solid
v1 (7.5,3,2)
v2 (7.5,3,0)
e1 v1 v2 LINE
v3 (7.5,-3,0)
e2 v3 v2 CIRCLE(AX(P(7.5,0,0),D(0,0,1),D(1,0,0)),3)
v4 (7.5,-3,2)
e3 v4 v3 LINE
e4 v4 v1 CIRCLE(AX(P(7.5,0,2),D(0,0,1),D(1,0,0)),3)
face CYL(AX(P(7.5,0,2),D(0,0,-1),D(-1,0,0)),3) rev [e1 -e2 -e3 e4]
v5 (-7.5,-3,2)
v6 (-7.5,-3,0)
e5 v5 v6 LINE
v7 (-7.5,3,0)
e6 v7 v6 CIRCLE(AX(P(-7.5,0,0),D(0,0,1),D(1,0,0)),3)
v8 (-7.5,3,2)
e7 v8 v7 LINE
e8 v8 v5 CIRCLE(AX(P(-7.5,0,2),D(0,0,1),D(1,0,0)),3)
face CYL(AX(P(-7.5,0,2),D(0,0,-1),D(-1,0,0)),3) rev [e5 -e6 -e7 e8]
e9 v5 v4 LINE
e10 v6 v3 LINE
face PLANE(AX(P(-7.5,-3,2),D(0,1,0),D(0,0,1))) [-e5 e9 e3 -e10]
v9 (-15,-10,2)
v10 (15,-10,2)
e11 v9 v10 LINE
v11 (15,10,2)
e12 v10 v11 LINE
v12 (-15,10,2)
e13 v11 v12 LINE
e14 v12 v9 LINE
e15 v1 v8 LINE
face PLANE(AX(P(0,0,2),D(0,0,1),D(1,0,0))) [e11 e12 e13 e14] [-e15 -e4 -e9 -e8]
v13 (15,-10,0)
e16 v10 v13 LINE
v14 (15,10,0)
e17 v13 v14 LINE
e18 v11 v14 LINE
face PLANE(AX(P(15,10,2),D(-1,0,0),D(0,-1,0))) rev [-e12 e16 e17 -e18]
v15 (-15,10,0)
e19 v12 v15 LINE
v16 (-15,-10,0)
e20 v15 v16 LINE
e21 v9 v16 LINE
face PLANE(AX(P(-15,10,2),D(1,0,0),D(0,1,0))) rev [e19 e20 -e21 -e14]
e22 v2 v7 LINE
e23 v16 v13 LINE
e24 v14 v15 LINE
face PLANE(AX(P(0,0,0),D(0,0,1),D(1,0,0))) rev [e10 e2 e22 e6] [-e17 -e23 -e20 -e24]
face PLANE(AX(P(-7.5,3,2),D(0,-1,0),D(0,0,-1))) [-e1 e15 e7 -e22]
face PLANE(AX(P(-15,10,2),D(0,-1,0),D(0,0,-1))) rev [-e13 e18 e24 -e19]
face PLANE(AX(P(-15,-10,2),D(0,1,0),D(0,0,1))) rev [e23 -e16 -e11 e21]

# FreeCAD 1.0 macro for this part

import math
import FreeCAD as App
import Part
import Sketcher
from FreeCAD import Vector
Q = App.Units.Quantity

doc = App.newDocument("Part")
params = doc.addObject("Spreadsheet::Sheet", "Params")
for row, (alias, value) in enumerate([
    ("sketch1_radius", "3 mm"),
    ("sketch1_width", "30 mm"),
    ("sketch1_width2", "15 mm"),
    ("sketch1_height", "20 mm"),
    ("pad1_length", "2 mm"),
], start=1):
    params.set(f"A{row}", alias)
    params.set(f"B{row}", "=" + value)
    params.setAlias(f"B{row}", alias)

body = doc.addObject("PartDesign::Body", "Body")

# Sketch on XY plane
sketch1 = doc.addObject("Sketcher::SketchObject", "Sketch")
body.addObject(sketch1)
sketch1.AttachmentSupport = (doc.XY_Plane, [""])
sketch1.MapMode = "FlatFace"
sketch1.addGeometry(Part.LineSegment(Vector(-15, 10, 0), Vector(-15, -10, 0)), False)
sketch1.addGeometry(Part.LineSegment(Vector(-15, -10, 0), Vector(15, -10, 0)), False)
sketch1.addGeometry(Part.LineSegment(Vector(15, -10, 0), Vector(15, 10, 0)), False)
sketch1.addGeometry(Part.LineSegment(Vector(15, 10, 0), Vector(-15, 10, 0)), False)
sketch1.addGeometry(Part.ArcOfCircle(Part.Circle(Vector(-7.5, 0, 0), Vector(0, 0, 1), 3), math.radians(90), math.radians(270)), False)
sketch1.addGeometry(Part.LineSegment(Vector(-7.5, 3, 0), Vector(7.5, 3, 0)), False)
sketch1.addGeometry(Part.ArcOfCircle(Part.Circle(Vector(7.5, 0, 0), Vector(0, 0, 1), 3), math.radians(-90), math.radians(90)), False)
sketch1.addGeometry(Part.LineSegment(Vector(7.5, -3, 0), Vector(-7.5, -3, 0)), False)
sketch1.addConstraint(Sketcher.Constraint("Coincident", 0, 2, 1, 1))
sketch1.addConstraint(Sketcher.Constraint("Coincident", 1, 2, 2, 1))
sketch1.addConstraint(Sketcher.Constraint("Coincident", 2, 2, 3, 1))
sketch1.addConstraint(Sketcher.Constraint("Coincident", 3, 2, 0, 1))
sketch1.addConstraint(Sketcher.Constraint("Tangent", 4, 1, 5, 1))
sketch1.addConstraint(Sketcher.Constraint("Tangent", 5, 2, 6, 2))
sketch1.addConstraint(Sketcher.Constraint("Tangent", 6, 1, 7, 1))
sketch1.addConstraint(Sketcher.Constraint("Tangent", 7, 2, 4, 2))
sketch1.addConstraint(Sketcher.Constraint("Vertical", 0))
sketch1.addConstraint(Sketcher.Constraint("Horizontal", 1))
sketch1.addConstraint(Sketcher.Constraint("Vertical", 2))
sketch1.addConstraint(Sketcher.Constraint("Horizontal", 3))
sketch1.addConstraint(Sketcher.Constraint("Horizontal", 5))
sketch1.addConstraint(Sketcher.Constraint("Horizontal", 7))
sketch1.addConstraint(Sketcher.Constraint("Symmetric", 4, 3, 6, 3, -1, 1))
sketch1.addConstraint(Sketcher.Constraint("Symmetric", 0, 2, 2, 2, -1, 1))
sketch1.addConstraint(Sketcher.Constraint("Radius", 4, Q("3 mm")))
sketch1.addConstraint(Sketcher.Constraint("DistanceX", 1, 1, 1, 2, Q("30 mm")))
sketch1.addConstraint(Sketcher.Constraint("DistanceX", 5, 1, 5, 2, Q("15 mm")))
sketch1.addConstraint(Sketcher.Constraint("DistanceY", 0, 2, 0, 1, Q("20 mm")))
sketch1.setExpression("Constraints[16]", "Params.sketch1_radius")
sketch1.setExpression("Constraints[17]", "Params.sketch1_width")
sketch1.setExpression("Constraints[18]", "Params.sketch1_width2")
sketch1.setExpression("Constraints[19]", "Params.sketch1_height")
pad1 = doc.addObject("PartDesign::Pad", "Pad")
body.addObject(pad1)
pad1.Profile = sketch1
pad1.setExpression("Length", "Params.pad1_length")

doc.recompute()
